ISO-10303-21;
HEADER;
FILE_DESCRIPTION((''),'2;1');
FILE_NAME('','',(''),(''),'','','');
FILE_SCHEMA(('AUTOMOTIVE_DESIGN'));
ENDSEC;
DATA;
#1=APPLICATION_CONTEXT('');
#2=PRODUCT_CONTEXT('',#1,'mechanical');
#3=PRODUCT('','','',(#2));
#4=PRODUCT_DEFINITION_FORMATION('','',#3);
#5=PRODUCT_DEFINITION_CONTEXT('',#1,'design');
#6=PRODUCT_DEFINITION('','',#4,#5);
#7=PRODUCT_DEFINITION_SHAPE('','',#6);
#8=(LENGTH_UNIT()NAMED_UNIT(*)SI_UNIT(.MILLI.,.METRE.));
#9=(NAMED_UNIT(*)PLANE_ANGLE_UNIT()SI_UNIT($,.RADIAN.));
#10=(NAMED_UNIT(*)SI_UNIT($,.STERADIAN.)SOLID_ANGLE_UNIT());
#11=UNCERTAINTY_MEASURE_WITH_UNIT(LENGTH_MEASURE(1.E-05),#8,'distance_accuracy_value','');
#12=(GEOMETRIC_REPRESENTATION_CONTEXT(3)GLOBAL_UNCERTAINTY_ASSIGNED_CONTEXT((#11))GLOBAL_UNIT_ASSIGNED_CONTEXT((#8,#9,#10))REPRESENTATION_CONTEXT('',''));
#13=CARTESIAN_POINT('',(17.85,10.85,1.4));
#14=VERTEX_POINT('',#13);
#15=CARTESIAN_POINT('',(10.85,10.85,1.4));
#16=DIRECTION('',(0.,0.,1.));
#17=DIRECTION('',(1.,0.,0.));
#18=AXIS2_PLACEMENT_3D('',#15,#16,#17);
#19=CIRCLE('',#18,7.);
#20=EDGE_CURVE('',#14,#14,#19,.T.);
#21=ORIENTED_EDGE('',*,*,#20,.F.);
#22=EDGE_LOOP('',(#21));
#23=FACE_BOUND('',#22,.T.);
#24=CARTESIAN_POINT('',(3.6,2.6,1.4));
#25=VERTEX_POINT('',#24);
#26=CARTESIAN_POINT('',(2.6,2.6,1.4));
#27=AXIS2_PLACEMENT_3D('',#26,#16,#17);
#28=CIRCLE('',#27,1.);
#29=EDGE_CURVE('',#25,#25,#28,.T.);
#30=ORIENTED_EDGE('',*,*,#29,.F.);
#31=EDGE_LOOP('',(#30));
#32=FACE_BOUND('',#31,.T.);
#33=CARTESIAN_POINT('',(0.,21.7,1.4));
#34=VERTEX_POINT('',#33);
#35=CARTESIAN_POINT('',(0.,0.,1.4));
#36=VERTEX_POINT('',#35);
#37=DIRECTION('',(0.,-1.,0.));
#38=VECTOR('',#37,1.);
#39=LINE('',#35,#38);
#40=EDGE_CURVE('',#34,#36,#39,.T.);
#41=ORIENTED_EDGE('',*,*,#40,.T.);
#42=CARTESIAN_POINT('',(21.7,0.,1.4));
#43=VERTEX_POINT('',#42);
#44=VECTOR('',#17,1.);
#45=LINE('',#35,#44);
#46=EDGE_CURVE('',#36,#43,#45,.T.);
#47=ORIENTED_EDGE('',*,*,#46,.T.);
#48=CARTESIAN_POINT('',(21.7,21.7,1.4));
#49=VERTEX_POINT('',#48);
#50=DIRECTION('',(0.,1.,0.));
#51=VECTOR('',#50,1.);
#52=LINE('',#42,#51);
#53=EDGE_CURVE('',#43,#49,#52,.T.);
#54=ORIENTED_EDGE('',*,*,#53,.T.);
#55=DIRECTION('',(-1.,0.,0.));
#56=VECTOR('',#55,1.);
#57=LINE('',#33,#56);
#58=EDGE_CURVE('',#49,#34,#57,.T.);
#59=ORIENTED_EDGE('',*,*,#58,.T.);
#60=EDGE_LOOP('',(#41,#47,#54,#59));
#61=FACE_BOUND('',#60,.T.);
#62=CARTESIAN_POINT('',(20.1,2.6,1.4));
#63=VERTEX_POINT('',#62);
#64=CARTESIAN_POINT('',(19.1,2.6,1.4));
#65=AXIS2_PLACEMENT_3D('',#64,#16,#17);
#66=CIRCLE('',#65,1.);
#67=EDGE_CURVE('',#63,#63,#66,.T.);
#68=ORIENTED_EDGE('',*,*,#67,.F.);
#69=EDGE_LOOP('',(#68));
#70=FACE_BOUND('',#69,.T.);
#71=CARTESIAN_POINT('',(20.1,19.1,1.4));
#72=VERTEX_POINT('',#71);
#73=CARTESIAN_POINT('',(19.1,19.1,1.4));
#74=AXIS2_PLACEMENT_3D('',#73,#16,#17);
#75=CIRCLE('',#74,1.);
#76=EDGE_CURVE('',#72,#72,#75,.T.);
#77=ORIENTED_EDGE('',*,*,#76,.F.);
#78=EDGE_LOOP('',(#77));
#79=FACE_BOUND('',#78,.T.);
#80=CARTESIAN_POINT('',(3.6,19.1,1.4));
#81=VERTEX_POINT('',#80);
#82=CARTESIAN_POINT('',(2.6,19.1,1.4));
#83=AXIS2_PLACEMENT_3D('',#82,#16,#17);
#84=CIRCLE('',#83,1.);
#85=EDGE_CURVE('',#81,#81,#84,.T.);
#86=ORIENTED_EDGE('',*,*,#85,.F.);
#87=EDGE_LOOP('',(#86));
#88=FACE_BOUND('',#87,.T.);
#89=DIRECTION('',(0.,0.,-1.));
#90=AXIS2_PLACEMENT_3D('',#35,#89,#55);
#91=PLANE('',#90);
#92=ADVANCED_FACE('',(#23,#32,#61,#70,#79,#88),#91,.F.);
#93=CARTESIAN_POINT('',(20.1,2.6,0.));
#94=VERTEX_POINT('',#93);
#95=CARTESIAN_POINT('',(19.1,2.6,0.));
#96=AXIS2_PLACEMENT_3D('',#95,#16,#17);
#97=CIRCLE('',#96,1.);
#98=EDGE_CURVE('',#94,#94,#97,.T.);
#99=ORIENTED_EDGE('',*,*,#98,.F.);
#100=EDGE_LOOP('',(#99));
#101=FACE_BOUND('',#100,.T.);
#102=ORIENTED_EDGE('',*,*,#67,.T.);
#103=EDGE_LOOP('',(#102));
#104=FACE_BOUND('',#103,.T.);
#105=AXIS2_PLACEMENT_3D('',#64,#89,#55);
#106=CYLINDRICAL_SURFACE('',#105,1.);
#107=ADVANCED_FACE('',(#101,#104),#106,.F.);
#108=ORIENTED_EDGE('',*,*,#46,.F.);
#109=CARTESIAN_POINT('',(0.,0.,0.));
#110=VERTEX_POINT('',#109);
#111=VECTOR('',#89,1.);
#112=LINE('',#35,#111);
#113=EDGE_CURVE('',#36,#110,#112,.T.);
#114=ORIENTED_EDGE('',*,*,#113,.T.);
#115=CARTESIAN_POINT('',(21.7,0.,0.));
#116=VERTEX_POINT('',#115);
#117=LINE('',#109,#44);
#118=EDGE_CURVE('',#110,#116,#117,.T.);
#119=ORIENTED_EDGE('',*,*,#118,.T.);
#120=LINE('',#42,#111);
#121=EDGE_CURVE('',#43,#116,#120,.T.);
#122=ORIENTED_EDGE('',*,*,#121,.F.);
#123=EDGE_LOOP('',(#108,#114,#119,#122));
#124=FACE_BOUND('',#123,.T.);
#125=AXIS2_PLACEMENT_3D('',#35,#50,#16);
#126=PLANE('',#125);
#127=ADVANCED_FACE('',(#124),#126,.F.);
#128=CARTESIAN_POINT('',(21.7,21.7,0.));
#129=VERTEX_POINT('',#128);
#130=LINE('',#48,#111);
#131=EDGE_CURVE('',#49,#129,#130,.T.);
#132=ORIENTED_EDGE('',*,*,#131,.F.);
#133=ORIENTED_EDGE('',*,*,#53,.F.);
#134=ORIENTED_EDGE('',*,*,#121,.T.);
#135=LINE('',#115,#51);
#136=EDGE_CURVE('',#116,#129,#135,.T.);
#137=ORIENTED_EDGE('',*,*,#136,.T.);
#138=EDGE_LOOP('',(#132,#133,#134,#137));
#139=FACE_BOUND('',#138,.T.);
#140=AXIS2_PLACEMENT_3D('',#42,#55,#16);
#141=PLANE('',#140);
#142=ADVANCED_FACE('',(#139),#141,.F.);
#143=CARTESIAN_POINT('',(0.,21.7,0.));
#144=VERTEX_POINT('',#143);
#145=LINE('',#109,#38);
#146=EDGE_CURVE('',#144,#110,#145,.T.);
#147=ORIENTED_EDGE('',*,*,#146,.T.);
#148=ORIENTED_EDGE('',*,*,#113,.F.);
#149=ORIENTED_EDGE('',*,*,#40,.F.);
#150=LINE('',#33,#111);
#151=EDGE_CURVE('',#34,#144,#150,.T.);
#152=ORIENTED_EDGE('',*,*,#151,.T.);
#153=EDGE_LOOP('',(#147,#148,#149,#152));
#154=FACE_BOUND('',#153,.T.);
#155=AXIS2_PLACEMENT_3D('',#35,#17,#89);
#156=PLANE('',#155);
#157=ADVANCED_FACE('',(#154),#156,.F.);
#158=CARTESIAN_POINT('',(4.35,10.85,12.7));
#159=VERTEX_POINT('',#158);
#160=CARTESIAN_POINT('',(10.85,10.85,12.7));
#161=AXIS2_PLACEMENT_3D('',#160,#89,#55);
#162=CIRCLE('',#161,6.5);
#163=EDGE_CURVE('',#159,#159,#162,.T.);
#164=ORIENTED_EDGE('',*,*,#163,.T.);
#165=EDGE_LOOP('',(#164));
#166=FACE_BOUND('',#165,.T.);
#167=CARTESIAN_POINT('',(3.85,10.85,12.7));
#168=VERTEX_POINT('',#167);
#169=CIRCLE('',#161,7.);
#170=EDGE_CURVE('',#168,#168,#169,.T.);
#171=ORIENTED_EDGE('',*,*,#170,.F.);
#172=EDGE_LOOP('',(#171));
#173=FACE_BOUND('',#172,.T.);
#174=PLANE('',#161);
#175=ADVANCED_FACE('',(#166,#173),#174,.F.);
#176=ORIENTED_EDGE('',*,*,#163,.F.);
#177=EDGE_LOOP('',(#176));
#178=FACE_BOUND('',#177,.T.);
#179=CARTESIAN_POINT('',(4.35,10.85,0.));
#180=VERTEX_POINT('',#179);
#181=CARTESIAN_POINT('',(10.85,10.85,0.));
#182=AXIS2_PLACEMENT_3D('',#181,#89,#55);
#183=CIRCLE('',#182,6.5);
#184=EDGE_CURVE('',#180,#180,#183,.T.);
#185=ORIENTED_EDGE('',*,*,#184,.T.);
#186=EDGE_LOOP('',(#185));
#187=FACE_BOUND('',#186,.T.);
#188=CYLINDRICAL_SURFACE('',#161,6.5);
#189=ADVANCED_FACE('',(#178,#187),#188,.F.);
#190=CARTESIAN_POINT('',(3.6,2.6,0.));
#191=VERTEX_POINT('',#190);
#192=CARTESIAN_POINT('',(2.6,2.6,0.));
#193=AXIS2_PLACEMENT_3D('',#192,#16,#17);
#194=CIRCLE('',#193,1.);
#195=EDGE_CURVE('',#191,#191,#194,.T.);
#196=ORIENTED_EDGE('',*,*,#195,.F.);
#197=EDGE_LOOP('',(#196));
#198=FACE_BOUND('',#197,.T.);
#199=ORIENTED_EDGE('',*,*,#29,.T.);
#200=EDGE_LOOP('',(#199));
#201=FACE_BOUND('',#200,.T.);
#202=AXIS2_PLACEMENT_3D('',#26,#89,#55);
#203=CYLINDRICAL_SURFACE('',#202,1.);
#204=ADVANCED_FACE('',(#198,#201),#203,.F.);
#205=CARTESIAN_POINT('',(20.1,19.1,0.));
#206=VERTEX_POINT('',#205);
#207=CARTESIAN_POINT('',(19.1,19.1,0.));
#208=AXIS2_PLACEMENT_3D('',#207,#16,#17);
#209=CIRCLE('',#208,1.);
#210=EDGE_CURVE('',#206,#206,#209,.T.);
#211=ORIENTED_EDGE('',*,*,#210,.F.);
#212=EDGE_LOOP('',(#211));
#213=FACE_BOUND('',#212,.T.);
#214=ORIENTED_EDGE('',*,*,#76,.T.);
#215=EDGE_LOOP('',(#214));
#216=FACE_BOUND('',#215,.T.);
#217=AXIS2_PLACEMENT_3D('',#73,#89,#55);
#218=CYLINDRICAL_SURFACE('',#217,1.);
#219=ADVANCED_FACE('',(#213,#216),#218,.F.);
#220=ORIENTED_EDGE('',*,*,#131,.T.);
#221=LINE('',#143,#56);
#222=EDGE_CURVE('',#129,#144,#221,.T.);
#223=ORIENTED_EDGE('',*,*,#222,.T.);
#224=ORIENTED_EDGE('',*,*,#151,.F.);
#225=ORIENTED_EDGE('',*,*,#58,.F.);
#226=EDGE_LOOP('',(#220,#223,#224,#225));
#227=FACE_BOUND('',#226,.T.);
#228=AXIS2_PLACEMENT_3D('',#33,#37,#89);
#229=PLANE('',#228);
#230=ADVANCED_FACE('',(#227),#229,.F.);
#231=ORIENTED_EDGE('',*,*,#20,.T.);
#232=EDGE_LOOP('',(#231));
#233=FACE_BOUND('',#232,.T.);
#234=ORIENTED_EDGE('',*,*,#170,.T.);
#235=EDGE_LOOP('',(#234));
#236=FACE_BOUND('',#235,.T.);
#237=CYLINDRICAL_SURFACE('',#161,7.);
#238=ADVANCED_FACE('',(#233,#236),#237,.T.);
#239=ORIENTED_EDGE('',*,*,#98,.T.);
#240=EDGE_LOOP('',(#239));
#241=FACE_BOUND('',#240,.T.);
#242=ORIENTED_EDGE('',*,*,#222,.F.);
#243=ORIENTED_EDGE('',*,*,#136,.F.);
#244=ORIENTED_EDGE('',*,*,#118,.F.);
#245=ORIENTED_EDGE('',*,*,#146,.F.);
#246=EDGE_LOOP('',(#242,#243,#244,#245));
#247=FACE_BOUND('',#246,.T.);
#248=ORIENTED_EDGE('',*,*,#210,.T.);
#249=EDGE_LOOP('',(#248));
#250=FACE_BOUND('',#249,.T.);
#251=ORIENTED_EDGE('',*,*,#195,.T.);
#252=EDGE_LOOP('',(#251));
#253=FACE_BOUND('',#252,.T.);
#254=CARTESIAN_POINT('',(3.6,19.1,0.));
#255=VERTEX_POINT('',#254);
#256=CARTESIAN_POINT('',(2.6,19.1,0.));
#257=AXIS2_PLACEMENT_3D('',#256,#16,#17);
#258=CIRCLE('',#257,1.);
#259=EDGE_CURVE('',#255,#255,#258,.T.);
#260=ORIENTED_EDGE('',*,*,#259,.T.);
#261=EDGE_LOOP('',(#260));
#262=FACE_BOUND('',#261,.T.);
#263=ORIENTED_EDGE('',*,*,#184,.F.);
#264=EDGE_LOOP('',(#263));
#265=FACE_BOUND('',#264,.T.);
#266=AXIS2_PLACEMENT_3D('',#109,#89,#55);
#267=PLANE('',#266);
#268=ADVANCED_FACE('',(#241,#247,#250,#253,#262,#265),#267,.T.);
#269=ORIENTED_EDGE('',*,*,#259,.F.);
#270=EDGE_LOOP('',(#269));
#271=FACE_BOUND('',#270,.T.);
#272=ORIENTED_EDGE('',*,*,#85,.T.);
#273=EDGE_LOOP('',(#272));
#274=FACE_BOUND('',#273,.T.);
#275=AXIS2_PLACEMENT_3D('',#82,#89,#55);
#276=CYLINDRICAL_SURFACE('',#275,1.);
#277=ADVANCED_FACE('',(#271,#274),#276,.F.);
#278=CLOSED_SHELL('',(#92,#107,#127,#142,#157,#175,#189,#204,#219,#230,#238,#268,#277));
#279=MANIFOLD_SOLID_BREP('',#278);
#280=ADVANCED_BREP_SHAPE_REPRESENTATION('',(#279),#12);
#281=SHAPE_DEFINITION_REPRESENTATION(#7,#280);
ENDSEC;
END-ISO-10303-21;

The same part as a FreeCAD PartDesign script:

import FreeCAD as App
import Part
import Sketcher
from FreeCAD import Vector

doc = App.newDocument("Part")
params = doc.addObject("Spreadsheet::Sheet", "Params")
for row, (alias, value) in enumerate([
    ("sketch1_diameter", "2 mm"),
    ("sketch1_diameter2", "14 mm"),
    ("sketch1_width", "21.7 mm"),
    ("pad1_length", "1.4 mm"),
    ("sketch2_diameter", "14 mm"),
    ("sketch2_diameter2", "13 mm"),
    ("pad2_length", "12.7 mm"),
], start=1):
    params.set(f"A{row}", alias)
    params.set(f"B{row}", "=" + value)
    params.setAlias(f"B{row}", alias)

body = doc.addObject("PartDesign::Body", "Body")

# Sketch on XY plane
sketch1 = body.newObject("Sketcher::SketchObject", "Sketch")
sketch1.AttachmentSupport = (doc.getObject("XY_Plane"), [""])
sketch1.MapMode = "FlatFace"
sketch1.addGeometry([
    Part.LineSegment(Vector(0, 21.7, 0), Vector(0, 0, 0)),  # 0
    Part.LineSegment(Vector(0, 0, 0), Vector(21.7, 0, 0)),  # 1
    Part.LineSegment(Vector(21.7, 0, 0), Vector(21.7, 21.7, 0)),  # 2
    Part.LineSegment(Vector(21.7, 21.7, 0), Vector(0, 21.7, 0)),  # 3
    Part.Circle(Vector(2.6, 2.6, 0), Vector(0, 0, 1), 1),  # 4
    Part.Circle(Vector(19.1, 2.6, 0), Vector(0, 0, 1), 1),  # 5
    Part.Circle(Vector(2.6, 19.1, 0), Vector(0, 0, 1), 1),  # 6
    Part.Circle(Vector(10.8, 10.8, 0), Vector(0, 0, 1), 7),  # 7
    Part.Circle(Vector(19.1, 19.1, 0), Vector(0, 0, 1), 1),  # 8
], False)
sketch1.addConstraint([
    Sketcher.Constraint("Coincident", 0, 2, 1, 1),
    Sketcher.Constraint("Coincident", 1, 2, 2, 1),
    Sketcher.Constraint("Coincident", 2, 2, 3, 1),
    Sketcher.Constraint("Coincident", 3, 2, 0, 1),
    Sketcher.Constraint("Vertical", 0),
    Sketcher.Constraint("Horizontal", 1),
    Sketcher.Constraint("Vertical", 2),
    Sketcher.Constraint("Horizontal", 3),
    Sketcher.Constraint("Coincident", 0, 2, -1, 1),
    Sketcher.Constraint("Equal", 4, 5),
    Sketcher.Constraint("Equal", 5, 6),
    Sketcher.Constraint("Equal", 6, 8),
    Sketcher.Constraint("Horizontal", 4, 3, 5, 3),
    Sketcher.Constraint("Horizontal", 6, 3, 8, 3),
    Sketcher.Constraint("Vertical", 4, 3, 6, 3),
    Sketcher.Constraint("Vertical", 5, 3, 8, 3),
    Sketcher.Constraint("Equal", 3, 0),
    Sketcher.Constraint("Diameter", 4, 2.0),
    Sketcher.Constraint("Diameter", 7, 14.0),
    Sketcher.Constraint("DistanceX", 1, 1, 1, 2, 21.7),
    Sketcher.Constraint("DistanceX", -1, 1, 4, 3, 2.6),
    Sketcher.Constraint("DistanceY", -1, 1, 4, 3, 2.6),
    Sketcher.Constraint("DistanceX", -1, 1, 5, 3, 19.1),
    Sketcher.Constraint("DistanceY", -1, 1, 6, 3, 19.1),
    Sketcher.Constraint("DistanceX", -1, 1, 7, 3, 10.85),
    Sketcher.Constraint("DistanceY", -1, 1, 7, 3, 10.85),
])
sketch1.setExpression("Constraints[17]", "Params.sketch1_diameter")
sketch1.setExpression("Constraints[18]", "Params.sketch1_diameter2")
sketch1.setExpression("Constraints[19]", "Params.sketch1_width")
pad1 = body.newObject("PartDesign::Pad", "Pad")
pad1.Profile = sketch1
pad1.setExpression("Length", "Params.pad1_length")

# Sketch on XY plane
sketch2 = body.newObject("Sketcher::SketchObject", "Sketch001")
sketch2.AttachmentSupport = (doc.getObject("XY_Plane"), [""])
sketch2.MapMode = "FlatFace"
sketch2.addGeometry([
    Part.Circle(Vector(11, 11, 0), Vector(0, 0, 1), 7),
    Part.Circle(Vector(11, 11, 0), Vector(0, 0, 1), 6),
], False)
sketch2.addConstraint([
    Sketcher.Constraint("Coincident", 1, 3, 0, 3),
    Sketcher.Constraint("Diameter", 0, 14.0),
    Sketcher.Constraint("Diameter", 1, 13.0),
    Sketcher.Constraint("DistanceX", -1, 1, 0, 3, 10.85),
    Sketcher.Constraint("DistanceY", -1, 1, 0, 3, 10.85),
])
sketch2.setExpression("Constraints[1]", "Params.sketch2_diameter")
sketch2.setExpression("Constraints[2]", "Params.sketch2_diameter2")
pad2 = body.newObject("PartDesign::Pad", "Pad001")
pad2.Profile = sketch2
pad2.setExpression("Length", "Params.pad2_length")

doc.recompute()
